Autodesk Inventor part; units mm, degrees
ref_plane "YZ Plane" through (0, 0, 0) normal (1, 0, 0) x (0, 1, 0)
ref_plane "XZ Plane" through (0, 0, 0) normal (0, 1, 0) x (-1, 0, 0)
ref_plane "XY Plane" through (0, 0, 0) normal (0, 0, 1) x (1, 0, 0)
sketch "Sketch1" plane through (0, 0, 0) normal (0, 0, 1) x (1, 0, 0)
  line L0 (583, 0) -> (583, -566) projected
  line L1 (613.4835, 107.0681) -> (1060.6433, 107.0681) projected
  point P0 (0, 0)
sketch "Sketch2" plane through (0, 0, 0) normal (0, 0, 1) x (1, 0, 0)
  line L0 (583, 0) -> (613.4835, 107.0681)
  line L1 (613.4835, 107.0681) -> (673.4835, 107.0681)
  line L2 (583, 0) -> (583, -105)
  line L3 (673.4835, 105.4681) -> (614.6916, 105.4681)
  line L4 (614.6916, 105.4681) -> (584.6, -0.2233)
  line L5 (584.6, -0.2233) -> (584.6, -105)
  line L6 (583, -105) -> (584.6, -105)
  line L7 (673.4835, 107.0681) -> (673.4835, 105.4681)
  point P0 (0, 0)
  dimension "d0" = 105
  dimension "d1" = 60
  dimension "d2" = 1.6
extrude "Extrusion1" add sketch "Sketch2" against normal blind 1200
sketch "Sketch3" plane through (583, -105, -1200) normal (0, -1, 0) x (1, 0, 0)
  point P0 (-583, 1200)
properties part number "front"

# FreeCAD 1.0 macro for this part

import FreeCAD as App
import Part
import Sketcher

V = App.Vector

doc = App.newDocument("Part")
body = doc.addObject("PartDesign::Body", "Body")

sketch1 = body.newObject("Sketcher::SketchObject", "Sketch")
sketch1.AttachmentSupport = (doc.getObject("XY_Plane"), [""])
sketch1.MapMode = "FlatFace"
sketch1.addGeometry(Part.LineSegment(V(613.4835, 107.0681, 0), V(583, 0, 0)), False)
sketch1.addGeometry(Part.LineSegment(V(583, 0, 0), V(583, -105, 0)), False)
sketch1.addGeometry(Part.LineSegment(V(583, -105, 0), V(584.6, -105, 0)), False)
sketch1.addGeometry(Part.LineSegment(V(584.6, -105, 0), V(584.6, -0.2233, 0)), False)
sketch1.addGeometry(Part.LineSegment(V(584.6, -0.2233, 0), V(614.6916, 105.4681, 0)), False)
sketch1.addGeometry(Part.LineSegment(V(614.6916, 105.4681, 0), V(673.4835, 105.4681, 0)), False)
sketch1.addGeometry(Part.LineSegment(V(673.4835, 105.4681, 0), V(673.4835, 107.0681, 0)), False)
sketch1.addGeometry(Part.LineSegment(V(673.4835, 107.0681, 0), V(613.4835, 107.0681, 0)), False)
sketch1.addConstraint(Sketcher.Constraint("Coincident", 0, 2, 1, 1))
sketch1.addConstraint(Sketcher.Constraint("Coincident", 1, 2, 2, 1))
sketch1.addConstraint(Sketcher.Constraint("Coincident", 2, 2, 3, 1))
sketch1.addConstraint(Sketcher.Constraint("Coincident", 3, 2, 4, 1))
sketch1.addConstraint(Sketcher.Constraint("Coincident", 4, 2, 5, 1))
sketch1.addConstraint(Sketcher.Constraint("Coincident", 5, 2, 6, 1))
sketch1.addConstraint(Sketcher.Constraint("Coincident", 6, 2, 7, 1))
sketch1.addConstraint(Sketcher.Constraint("Coincident", 7, 2, 0, 1))
sketch1.addConstraint(Sketcher.Constraint("Vertical", 1))
sketch1.addConstraint(Sketcher.Constraint("Horizontal", 2))
sketch1.addConstraint(Sketcher.Constraint("Vertical", 3))
sketch1.addConstraint(Sketcher.Constraint("Horizontal", 5))
sketch1.addConstraint(Sketcher.Constraint("Vertical", 6))
sketch1.addConstraint(Sketcher.Constraint("Horizontal", 7))
sketch1.addConstraint(Sketcher.Constraint("PointOnObject", 0, 2, -1))
sketch1.addConstraint(Sketcher.Constraint("DistanceX", 7, 2, 7, 1, 60.0))
sketch1.addConstraint(Sketcher.Constraint("DistanceY", 1, 2, 1, 1, 105.0))
sketch1.addConstraint(Sketcher.Constraint("DistanceX", 2, 1, 2, 2, 1.6))
sketch1.addConstraint(Sketcher.Constraint("DistanceY", 6, 1, 6, 2, 1.6))
sketch1.addConstraint(Sketcher.Constraint("DistanceX", -1, 1, 0, 2, 583.0))
sketch1.addConstraint(Sketcher.Constraint("DistanceX", 5, 1, 5, 2, 58.792))
sketch1.addConstraint(Sketcher.Constraint("Distance", 0, 111.323))
sketch1.addConstraint(Sketcher.Constraint("DistanceY", 3, 1, 3, 2, 104.7767))
sketch1.addConstraint(Sketcher.Constraint("DistanceY", -1, 1, 4, 2, 105.468))
pad1 = body.newObject("PartDesign::Pad", "Pad")
pad1.Profile = sketch1
pad1.Length = 1200
pad1.Reversed = True

doc.recompute()
